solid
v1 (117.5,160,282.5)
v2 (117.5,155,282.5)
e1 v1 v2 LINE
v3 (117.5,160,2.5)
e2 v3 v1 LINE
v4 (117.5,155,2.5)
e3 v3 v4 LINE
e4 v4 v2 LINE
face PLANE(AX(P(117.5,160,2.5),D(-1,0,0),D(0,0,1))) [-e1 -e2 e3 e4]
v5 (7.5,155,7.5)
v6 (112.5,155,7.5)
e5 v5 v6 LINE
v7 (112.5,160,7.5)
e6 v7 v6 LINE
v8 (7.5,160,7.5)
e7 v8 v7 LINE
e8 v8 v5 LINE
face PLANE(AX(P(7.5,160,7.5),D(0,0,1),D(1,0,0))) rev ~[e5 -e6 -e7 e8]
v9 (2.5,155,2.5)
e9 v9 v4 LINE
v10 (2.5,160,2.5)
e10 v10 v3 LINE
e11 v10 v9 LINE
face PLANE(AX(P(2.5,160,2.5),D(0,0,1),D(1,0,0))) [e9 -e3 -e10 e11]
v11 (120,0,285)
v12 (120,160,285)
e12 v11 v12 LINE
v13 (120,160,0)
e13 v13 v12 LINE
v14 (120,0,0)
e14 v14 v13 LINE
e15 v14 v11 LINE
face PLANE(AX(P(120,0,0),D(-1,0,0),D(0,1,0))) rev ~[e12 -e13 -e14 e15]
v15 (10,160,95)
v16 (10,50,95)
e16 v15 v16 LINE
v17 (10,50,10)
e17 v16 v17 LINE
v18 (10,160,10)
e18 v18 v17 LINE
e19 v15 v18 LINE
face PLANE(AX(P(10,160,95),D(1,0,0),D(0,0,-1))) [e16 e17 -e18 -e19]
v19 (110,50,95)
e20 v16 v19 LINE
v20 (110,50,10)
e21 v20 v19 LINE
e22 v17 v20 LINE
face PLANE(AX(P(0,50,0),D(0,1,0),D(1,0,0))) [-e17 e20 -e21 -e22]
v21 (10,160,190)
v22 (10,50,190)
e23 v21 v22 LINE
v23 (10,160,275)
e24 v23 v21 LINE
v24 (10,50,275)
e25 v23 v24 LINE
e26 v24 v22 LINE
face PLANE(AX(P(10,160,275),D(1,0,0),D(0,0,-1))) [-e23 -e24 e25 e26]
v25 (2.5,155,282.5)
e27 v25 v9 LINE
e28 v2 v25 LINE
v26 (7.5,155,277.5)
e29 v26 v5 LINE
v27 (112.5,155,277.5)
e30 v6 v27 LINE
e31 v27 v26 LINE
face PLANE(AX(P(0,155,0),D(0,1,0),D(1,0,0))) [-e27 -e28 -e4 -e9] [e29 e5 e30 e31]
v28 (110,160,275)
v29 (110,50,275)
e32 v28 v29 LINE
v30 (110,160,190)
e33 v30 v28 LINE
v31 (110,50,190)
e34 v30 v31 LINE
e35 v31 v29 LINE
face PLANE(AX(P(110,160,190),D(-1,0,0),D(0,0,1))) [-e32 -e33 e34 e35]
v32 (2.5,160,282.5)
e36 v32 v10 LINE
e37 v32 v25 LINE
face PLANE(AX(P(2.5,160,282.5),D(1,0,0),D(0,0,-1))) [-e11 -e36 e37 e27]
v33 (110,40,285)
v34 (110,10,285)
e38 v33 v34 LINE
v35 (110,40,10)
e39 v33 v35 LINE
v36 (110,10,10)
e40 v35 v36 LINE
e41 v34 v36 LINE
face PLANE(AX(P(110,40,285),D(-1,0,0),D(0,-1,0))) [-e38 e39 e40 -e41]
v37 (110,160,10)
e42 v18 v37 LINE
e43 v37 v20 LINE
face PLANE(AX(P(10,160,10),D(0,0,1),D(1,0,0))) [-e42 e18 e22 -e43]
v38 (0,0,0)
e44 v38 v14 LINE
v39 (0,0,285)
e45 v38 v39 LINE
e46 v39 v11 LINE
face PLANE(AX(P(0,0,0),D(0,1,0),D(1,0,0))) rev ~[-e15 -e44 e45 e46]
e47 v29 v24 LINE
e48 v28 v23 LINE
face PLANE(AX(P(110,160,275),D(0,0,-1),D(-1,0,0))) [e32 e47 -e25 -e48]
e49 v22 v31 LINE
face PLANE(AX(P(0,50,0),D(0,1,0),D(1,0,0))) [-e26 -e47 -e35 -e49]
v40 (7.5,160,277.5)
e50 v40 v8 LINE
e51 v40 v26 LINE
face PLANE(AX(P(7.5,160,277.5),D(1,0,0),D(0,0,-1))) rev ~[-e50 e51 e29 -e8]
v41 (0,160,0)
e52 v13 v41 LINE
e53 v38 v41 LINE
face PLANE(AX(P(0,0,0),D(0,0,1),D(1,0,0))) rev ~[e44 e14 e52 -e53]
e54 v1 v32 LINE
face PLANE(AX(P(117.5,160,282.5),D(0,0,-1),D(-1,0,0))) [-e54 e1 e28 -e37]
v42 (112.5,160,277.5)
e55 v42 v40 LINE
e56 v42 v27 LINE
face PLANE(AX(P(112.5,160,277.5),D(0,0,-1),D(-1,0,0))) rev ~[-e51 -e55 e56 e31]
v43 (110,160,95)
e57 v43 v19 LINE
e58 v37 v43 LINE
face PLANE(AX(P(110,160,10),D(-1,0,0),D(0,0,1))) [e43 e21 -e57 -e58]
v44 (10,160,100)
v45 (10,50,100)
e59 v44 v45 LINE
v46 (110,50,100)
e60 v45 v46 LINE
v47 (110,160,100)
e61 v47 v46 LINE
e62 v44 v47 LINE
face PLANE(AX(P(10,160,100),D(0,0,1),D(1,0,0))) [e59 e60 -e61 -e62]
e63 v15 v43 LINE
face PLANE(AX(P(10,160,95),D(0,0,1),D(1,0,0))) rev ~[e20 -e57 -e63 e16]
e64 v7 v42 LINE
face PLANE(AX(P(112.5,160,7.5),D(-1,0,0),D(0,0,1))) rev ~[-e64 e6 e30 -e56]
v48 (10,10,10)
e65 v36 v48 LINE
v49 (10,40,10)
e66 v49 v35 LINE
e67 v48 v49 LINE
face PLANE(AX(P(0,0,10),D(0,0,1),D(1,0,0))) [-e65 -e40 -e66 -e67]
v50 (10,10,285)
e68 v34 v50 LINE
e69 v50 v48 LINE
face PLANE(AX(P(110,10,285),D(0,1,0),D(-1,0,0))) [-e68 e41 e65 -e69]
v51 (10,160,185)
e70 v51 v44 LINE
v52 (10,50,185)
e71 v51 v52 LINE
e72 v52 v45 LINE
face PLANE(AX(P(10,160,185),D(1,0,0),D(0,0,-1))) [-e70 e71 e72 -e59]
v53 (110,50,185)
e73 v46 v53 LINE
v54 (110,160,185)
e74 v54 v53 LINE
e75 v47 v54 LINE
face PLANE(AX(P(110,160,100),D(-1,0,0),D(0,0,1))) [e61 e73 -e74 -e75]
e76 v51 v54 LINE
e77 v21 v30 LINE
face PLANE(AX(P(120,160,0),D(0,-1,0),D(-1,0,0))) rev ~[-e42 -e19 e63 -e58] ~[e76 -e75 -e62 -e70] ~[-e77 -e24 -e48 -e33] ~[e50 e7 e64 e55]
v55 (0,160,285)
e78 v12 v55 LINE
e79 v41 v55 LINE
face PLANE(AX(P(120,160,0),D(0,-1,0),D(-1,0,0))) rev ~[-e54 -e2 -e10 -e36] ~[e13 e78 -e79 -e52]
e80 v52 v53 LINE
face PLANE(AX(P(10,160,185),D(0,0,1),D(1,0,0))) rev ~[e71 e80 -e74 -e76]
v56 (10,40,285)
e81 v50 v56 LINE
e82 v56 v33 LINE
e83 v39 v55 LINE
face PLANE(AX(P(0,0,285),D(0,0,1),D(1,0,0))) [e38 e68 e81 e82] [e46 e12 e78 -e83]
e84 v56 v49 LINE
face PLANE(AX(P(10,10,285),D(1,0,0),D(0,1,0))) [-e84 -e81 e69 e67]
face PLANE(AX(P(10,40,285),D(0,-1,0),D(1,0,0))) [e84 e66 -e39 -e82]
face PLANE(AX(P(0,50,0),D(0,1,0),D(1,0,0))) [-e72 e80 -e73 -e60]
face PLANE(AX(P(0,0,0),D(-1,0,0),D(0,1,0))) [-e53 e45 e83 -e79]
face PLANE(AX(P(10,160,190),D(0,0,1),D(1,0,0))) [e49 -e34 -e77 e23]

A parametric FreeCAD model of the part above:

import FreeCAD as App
import Part
import Sketcher
from FreeCAD import Vector

doc = App.newDocument("Part")
body = doc.addObject("PartDesign::Body", "Body")

# Sketch on XY plane
sketch1 = doc.addObject("Sketcher::SketchObject", "Sketch")
body.addObject(sketch1)
sketch1.AttachmentSupport = (doc.XY_Plane, [""])
sketch1.MapMode = "FlatFace"
sketch1.addGeometry([
    Part.LineSegment(Vector(0, 160, 0), Vector(0, 0, 0)),
    Part.LineSegment(Vector(0, 0, 0), Vector(120, 0, 0)),
    Part.LineSegment(Vector(120, 0, 0), Vector(120, 160, 0)),
    Part.LineSegment(Vector(120, 160, 0), Vector(0, 160, 0)),
], False)
sketch1.addConstraint([
    Sketcher.Constraint("Coincident", 0, 2, 1, 1),
    Sketcher.Constraint("Coincident", 1, 2, 2, 1),
    Sketcher.Constraint("Coincident", 2, 2, 3, 1),
    Sketcher.Constraint("Coincident", 3, 2, 0, 1),
    Sketcher.Constraint("Vertical", 0),
    Sketcher.Constraint("Horizontal", 1),
    Sketcher.Constraint("Vertical", 2),
    Sketcher.Constraint("Horizontal", 3),
    Sketcher.Constraint("Coincident", 0, 2, -1, 1),
    Sketcher.Constraint("DistanceX", 1, 1, 1, 2, 120.0),
    Sketcher.Constraint("DistanceY", 0, 2, 0, 1, 160.0),
])
pad1 = doc.addObject("PartDesign::Pad", "Pad")
body.addObject(pad1)
pad1.Profile = sketch1
pad1.Length = 285

# Sketch on XY plane
sketch2 = doc.addObject("Sketcher::SketchObject", "Sketch001")
body.addObject(sketch2)
sketch2.AttachmentSupport = (doc.XY_Plane, [""])
sketch2.MapMode = "FlatFace"
sketch2.AttachmentOffset = App.Placement(Vector(0, 0, 285), App.Rotation())
sketch2.addGeometry([
    Part.LineSegment(Vector(110, 40, 0), Vector(10, 40, 0)),
    Part.LineSegment(Vector(10, 40, 0), Vector(10, 10, 0)),
    Part.LineSegment(Vector(10, 10, 0), Vector(110, 10, 0)),
    Part.LineSegment(Vector(110, 10, 0), Vector(110, 40, 0)),
], False)
sketch2.addConstraint([
    Sketcher.Constraint("Coincident", 0, 2, 1, 1),
    Sketcher.Constraint("Coincident", 1, 2, 2, 1),
    Sketcher.Constraint("Coincident", 2, 2, 3, 1),
    Sketcher.Constraint("Coincident", 3, 2, 0, 1),
    Sketcher.Constraint("Horizontal", 0),
    Sketcher.Constraint("Vertical", 1),
    Sketcher.Constraint("Horizontal", 2),
    Sketcher.Constraint("Vertical", 3),
    Sketcher.Constraint("DistanceY", 1, 2, 1, 1, 30.0),
    Sketcher.Constraint("DistanceX", -1, 1, 0, 2, 10.0),
    Sketcher.Constraint("DistanceY", -1, 1, 1, 2, 10.0),
    Sketcher.Constraint("DistanceX", 0, 2, 0, 1, 100.0),
])
pocket1 = doc.addObject("PartDesign::Pocket", "Pocket")
body.addObject(pocket1)
pocket1.Profile = sketch2
pocket1.Length = 275

# Sketch on XZ plane
sketch3 = doc.addObject("Sketcher::SketchObject", "Sketch002")
body.addObject(sketch3)
sketch3.AttachmentSupport = (doc.XZ_Plane, [""])
sketch3.MapMode = "FlatFace"
sketch3.AttachmentOffset = App.Placement(Vector(0, 0, -160), App.Rotation())
sketch3.addGeometry([
    Part.LineSegment(Vector(110, 10, 0), Vector(10, 10, 0)),  # 0
    Part.LineSegment(Vector(10, 10, 0), Vector(10, 95, 0)),  # 1
    Part.LineSegment(Vector(10, 95, 0), Vector(110, 95, 0)),  # 2
    Part.LineSegment(Vector(110, 95, 0), Vector(110, 10, 0)),  # 3
    Part.LineSegment(Vector(110, 100, 0), Vector(10, 100, 0)),  # 4
    Part.LineSegment(Vector(10, 100, 0), Vector(10, 185, 0)),  # 5
    Part.LineSegment(Vector(10, 185, 0), Vector(110, 185, 0)),  # 6
    Part.LineSegment(Vector(110, 185, 0), Vector(110, 100, 0)),  # 7
    Part.LineSegment(Vector(110, 190, 0), Vector(10, 190, 0)),  # 8
    Part.LineSegment(Vector(10, 190, 0), Vector(10, 275, 0)),  # 9
    Part.LineSegment(Vector(10, 275, 0), Vector(110, 275, 0)),  # 10
    Part.LineSegment(Vector(110, 275, 0), Vector(110, 190, 0)),  # 11
], False)
sketch3.addConstraint([
    Sketcher.Constraint("Coincident", 0, 2, 1, 1),
    Sketcher.Constraint("Coincident", 1, 2, 2, 1),
    Sketcher.Constraint("Coincident", 2, 2, 3, 1),
    Sketcher.Constraint("Coincident", 3, 2, 0, 1),
    Sketcher.Constraint("Coincident", 4, 2, 5, 1),
    Sketcher.Constraint("Coincident", 5, 2, 6, 1),
    Sketcher.Constraint("Coincident", 6, 2, 7, 1),
    Sketcher.Constraint("Coincident", 7, 2, 4, 1),
    Sketcher.Constraint("Coincident", 8, 2, 9, 1),
    Sketcher.Constraint("Coincident", 9, 2, 10, 1),
    Sketcher.Constraint("Coincident", 10, 2, 11, 1),
    Sketcher.Constraint("Coincident", 11, 2, 8, 1),
    Sketcher.Constraint("Horizontal", 0),
    Sketcher.Constraint("Vertical", 1),
    Sketcher.Constraint("Horizontal", 2),
    Sketcher.Constraint("Vertical", 3),
    Sketcher.Constraint("Horizontal", 4),
    Sketcher.Constraint("Vertical", 5),
    Sketcher.Constraint("Horizontal", 6),
    Sketcher.Constraint("Vertical", 7),
    Sketcher.Constraint("Horizontal", 8),
    Sketcher.Constraint("Vertical", 9),
    Sketcher.Constraint("Horizontal", 10),
    Sketcher.Constraint("Vertical", 11),
    Sketcher.Constraint("Vertical", 1, 2, 4, 2),
    Sketcher.Constraint("Vertical", 3, 2, 6, 2),
    Sketcher.Constraint("Vertical", 5, 2, 8, 2),
    Sketcher.Constraint("Vertical", 7, 2, 10, 2),
    Sketcher.Constraint("Equal", 3, 5),
    Sketcher.Constraint("Equal", 7, 9),
    Sketcher.Constraint("DistanceY", 1, 1, 1, 2, 85.0),
    Sketcher.Constraint("DistanceX", -1, 1, 0, 2, 10.0),
    Sketcher.Constraint("DistanceY", -1, 1, 0, 2, 10.0),
    Sketcher.Constraint("DistanceY", 1, 2, 4, 2, 5.0),
    Sketcher.Constraint("DistanceY", 5, 2, 8, 2, 5.0),
    Sketcher.Constraint("DistanceX", 0, 2, 0, 1, 100.0),
])
pocket2 = doc.addObject("PartDesign::Pocket", "Pocket001")
body.addObject(pocket2)
pocket2.Profile = sketch3
pocket2.Length = 110
pocket2.Reversed = True

# Sketch on XZ plane
sketch4 = doc.addObject("Sketcher::SketchObject", "Sketch003")
body.addObject(sketch4)
sketch4.AttachmentSupport = (doc.XZ_Plane, [""])
sketch4.MapMode = "FlatFace"
sketch4.AttachmentOffset = App.Placement(Vector(0, 0, -160), App.Rotation())
sketch4.addGeometry([
    Part.LineSegment(Vector(117.5, 2.5, 0), Vector(2.5, 2.5, 0)),  # 0
    Part.LineSegment(Vector(2.5, 2.5, 0), Vector(2.5, 282.5, 0)),  # 1
    Part.LineSegment(Vector(2.5, 282.5, 0), Vector(117.5, 282.5, 0)),  # 2
    Part.LineSegment(Vector(117.5, 282.5, 0), Vector(117.5, 2.5, 0)),  # 3
    Part.LineSegment(Vector(7.5, 277.5, 0), Vector(7.5, 7.5, 0)),  # 4
    Part.LineSegment(Vector(7.5, 7.5, 0), Vector(112.5, 7.5, 0)),  # 5
    Part.LineSegment(Vector(112.5, 7.5, 0), Vector(112.5, 277.5, 0)),  # 6
    Part.LineSegment(Vector(112.5, 277.5, 0), Vector(7.5, 277.5, 0)),  # 7
], False)
sketch4.addConstraint([
    Sketcher.Constraint("Coincident", 0, 2, 1, 1),
    Sketcher.Constraint("Coincident", 1, 2, 2, 1),
    Sketcher.Constraint("Coincident", 2, 2, 3, 1),
    Sketcher.Constraint("Coincident", 3, 2, 0, 1),
    Sketcher.Constraint("Coincident", 4, 2, 5, 1),
    Sketcher.Constraint("Coincident", 5, 2, 6, 1),
    Sketcher.Constraint("Coincident", 6, 2, 7, 1),
    Sketcher.Constraint("Coincident", 7, 2, 4, 1),
    Sketcher.Constraint("Horizontal", 0),
    Sketcher.Constraint("Vertical", 1),
    Sketcher.Constraint("Horizontal", 2),
    Sketcher.Constraint("Vertical", 3),
    Sketcher.Constraint("Vertical", 4),
    Sketcher.Constraint("Horizontal", 5),
    Sketcher.Constraint("Vertical", 6),
    Sketcher.Constraint("Horizontal", 7),
    Sketcher.Constraint("DistanceX", -1, 1, 0, 2, 2.5),
    Sketcher.Constraint("DistanceY", -1, 1, 0, 2, 2.5),
    Sketcher.Constraint("DistanceX", 0, 2, 0, 1, 115.0),
    Sketcher.Constraint("DistanceX", 5, 1, 5, 2, 105.0),
    Sketcher.Constraint("DistanceY", 1, 1, 1, 2, 280.0),
    Sketcher.Constraint("DistanceY", 4, 2, 4, 1, 270.0),
    Sketcher.Constraint("DistanceX", 0, 2, 4, 2, 5.0),
    Sketcher.Constraint("DistanceY", 0, 2, 4, 2, 5.0),
])
pocket3 = doc.addObject("PartDesign::Pocket", "Pocket002")
body.addObject(pocket3)
pocket3.Profile = sketch4
pocket3.Length = 5
pocket3.Reversed = True

doc.recompute()
